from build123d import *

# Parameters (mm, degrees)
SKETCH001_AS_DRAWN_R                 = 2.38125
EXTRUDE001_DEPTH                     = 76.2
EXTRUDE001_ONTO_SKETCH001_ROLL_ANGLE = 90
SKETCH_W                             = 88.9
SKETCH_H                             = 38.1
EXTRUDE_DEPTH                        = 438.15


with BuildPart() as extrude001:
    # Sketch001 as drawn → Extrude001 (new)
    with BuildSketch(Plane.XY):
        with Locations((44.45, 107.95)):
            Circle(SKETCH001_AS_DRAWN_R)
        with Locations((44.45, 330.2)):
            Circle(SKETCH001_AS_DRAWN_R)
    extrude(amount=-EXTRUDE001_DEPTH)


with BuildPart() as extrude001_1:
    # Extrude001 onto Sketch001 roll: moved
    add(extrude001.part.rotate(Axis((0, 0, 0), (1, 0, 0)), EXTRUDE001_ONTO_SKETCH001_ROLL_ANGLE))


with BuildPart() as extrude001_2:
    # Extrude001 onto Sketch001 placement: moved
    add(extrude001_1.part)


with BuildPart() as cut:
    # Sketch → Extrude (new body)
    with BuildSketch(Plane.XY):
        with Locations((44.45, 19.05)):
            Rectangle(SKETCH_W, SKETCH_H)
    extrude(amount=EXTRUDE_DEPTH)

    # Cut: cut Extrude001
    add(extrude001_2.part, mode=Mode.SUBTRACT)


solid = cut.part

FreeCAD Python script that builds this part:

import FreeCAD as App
import Part
import Sketcher
Q = App.Units.Quantity

doc = App.newDocument("Part")
body = doc.addObject("PartDesign::Body", "Body")
body.AllowCompound = True

sketch1 = doc.addObject("Sketcher::SketchObject", "Sketch")
body.addObject(sketch1)
sketch1.AttachmentSupport = (doc.XY_Plane, [""])
sketch1.MapMode = "FlatFace"
sketch1.addGeometry([
    Part.Circle(App.Vector(44.5, 108, 0), App.Vector(0, 0, 1), 2.4),
    Part.Circle(App.Vector(44.5, 330.2, 0), App.Vector(0, 0, 1), 2.4),
], False)
sketch1.addConstraint([
    Sketcher.Constraint("Equal", 0, 1),
    Sketcher.Constraint("Vertical", 0, 3, 1, 3),
    Sketcher.Constraint("Diameter", 0, Q("0.1875 in")),
    Sketcher.Constraint("DistanceY", -1, 1, 1, 3, Q("13 in")),
    Sketcher.Constraint("DistanceX", -1, 1, 0, 3, Q("1.75 in")),
    Sketcher.Constraint("DistanceY", -1, 1, 0, 3, Q("4.25 in")),
])
pad1 = doc.addObject("PartDesign::Pad", "Pad")
body.addObject(pad1)
pad1.Profile = sketch1
pad1.Length = Q("3 in")
pad1.Reversed = True
body2 = doc.addObject("PartDesign::Body", "Body001")
body2.AllowCompound = True
doc.recompute()

body.Placement = App.Placement(App.Vector(0, 0, 0), App.Rotation(App.Vector(1, 0, 0), 90))
boolean = doc.addObject("PartDesign::Boolean", "Boolean")
body2.addObject(boolean)
boolean.Type = "Fuse"
boolean.addObjects([body])
body3 = doc.addObject("PartDesign::Body", "Body002")

sketch2 = doc.addObject("Sketcher::SketchObject", "Sketch001")
body3.addObject(sketch2)
sketch2.AttachmentSupport = (doc.getObject("XY_Plane002"), [""])
sketch2.MapMode = "FlatFace"
sketch2.addGeometry([
    Part.LineSegment(App.Vector(0, 38, 0), App.Vector(0, 0, 0)),
    Part.LineSegment(App.Vector(0, 0, 0), App.Vector(89, 0, 0)),
    Part.LineSegment(App.Vector(89, 0, 0), App.Vector(89, 38, 0)),
    Part.LineSegment(App.Vector(89, 38, 0), App.Vector(0, 38, 0)),
], False)
sketch2.addConstraint([
    Sketcher.Constraint("Coincident", 0, 2, 1, 1),
    Sketcher.Constraint("Coincident", 1, 2, 2, 1),
    Sketcher.Constraint("Coincident", 2, 2, 3, 1),
    Sketcher.Constraint("Coincident", 3, 2, 0, 1),
    Sketcher.Constraint("Vertical", 0),
    Sketcher.Constraint("Horizontal", 1),
    Sketcher.Constraint("Vertical", 2),
    Sketcher.Constraint("Horizontal", 3),
    Sketcher.Constraint("Coincident", 0, 2, -1, 1),
    Sketcher.Constraint("DistanceX", 1, 1, 1, 2, Q("3.5 in")),
    Sketcher.Constraint("DistanceY", 0, 2, 0, 1, Q("1.5 in")),
])
pad2 = doc.addObject("PartDesign::Pad", "Pad001")
body3.addObject(pad2)
pad2.Profile = sketch2
pad2.Length = Q("17.25 in")
doc.recompute()

boolean2 = doc.addObject("PartDesign::Boolean", "Boolean001")
body3.addObject(boolean2)
boolean2.Type = "Cut"
boolean2.addObjects([body2])

doc.recompute()
